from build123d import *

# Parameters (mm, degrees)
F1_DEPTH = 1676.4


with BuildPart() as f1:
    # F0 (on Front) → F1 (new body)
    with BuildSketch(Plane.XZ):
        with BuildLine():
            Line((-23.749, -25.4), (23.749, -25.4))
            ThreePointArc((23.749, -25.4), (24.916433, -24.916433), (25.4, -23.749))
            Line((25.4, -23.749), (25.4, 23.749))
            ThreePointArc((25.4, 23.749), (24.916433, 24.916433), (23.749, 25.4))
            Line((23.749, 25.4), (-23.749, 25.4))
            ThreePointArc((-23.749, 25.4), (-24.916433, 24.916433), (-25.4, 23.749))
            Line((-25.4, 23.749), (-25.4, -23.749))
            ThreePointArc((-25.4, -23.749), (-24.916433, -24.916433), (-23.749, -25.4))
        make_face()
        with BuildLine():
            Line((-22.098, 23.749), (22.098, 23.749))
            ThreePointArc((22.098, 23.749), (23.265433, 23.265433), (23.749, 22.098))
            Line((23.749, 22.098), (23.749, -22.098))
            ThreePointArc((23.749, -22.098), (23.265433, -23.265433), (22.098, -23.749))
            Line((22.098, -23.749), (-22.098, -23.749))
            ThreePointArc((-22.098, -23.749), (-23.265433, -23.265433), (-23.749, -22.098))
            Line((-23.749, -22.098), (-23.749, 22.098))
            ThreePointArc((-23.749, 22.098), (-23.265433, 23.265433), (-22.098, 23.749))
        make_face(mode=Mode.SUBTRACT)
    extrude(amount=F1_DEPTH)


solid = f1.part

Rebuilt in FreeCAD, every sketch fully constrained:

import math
import FreeCAD as App
import Part
import Sketcher

V = App.Vector
Q = App.Units.Quantity

doc = App.newDocument("Part")
body = doc.addObject("PartDesign::Body", "Body")

sketch1 = doc.addObject("Sketcher::SketchObject", "Sketch")
body.addObject(sketch1)
sketch1.AttachmentSupport = (doc.XZ_Plane, [""])
sketch1.MapMode = "FlatFace"
sketch1.addGeometry([
    Part.LineSegment(V(-23.7, -25.4, 0), V(23.7, -25.4, 0)),
    Part.ArcOfCircle(Part.Circle(V(23.7, -23.7, 0), V(0, 0, 1), 1.7), math.radians(-90), math.radians(0)),
    Part.LineSegment(V(25.4, -23.7, 0), V(25.4, 23.7, 0)),
    Part.ArcOfCircle(Part.Circle(V(23.7, 23.7, 0), V(0, 0, 1), 1.7), math.radians(0), math.radians(90)),
    Part.LineSegment(V(23.7, 25.4, 0), V(-23.7, 25.4, 0)),
    Part.ArcOfCircle(Part.Circle(V(-23.7, 23.7, 0), V(0, 0, 1), 1.7), math.radians(90), math.radians(180)),
    Part.LineSegment(V(-25.4, 23.7, 0), V(-25.4, -23.7, 0)),
    Part.ArcOfCircle(Part.Circle(V(-23.7, -23.7, 0), V(0, 0, 1), 1.7), math.radians(-180), math.radians(-90)),
    Part.ArcOfCircle(Part.Circle(V(-22.1, 22.1, 0), V(0, 0, 1), 1.7), math.radians(90), math.radians(180)),
    Part.LineSegment(V(-22.1, 23.7, 0), V(22.1, 23.7, 0)),
    Part.ArcOfCircle(Part.Circle(V(22.1, 22.1, 0), V(0, 0, 1), 1.7), math.radians(0), math.radians(90)),
    Part.LineSegment(V(23.7, 22.1, 0), V(23.7, -22.1, 0)),
    Part.ArcOfCircle(Part.Circle(V(22.1, -22.1, 0), V(0, 0, 1), 1.7), math.radians(-90), math.radians(0)),
    Part.LineSegment(V(22.1, -23.7, 0), V(-22.1, -23.7, 0)),
    Part.ArcOfCircle(Part.Circle(V(-22.1, -22.1, 0), V(0, 0, 1), 1.7), math.radians(-180), math.radians(-90)),
    Part.LineSegment(V(-23.7, -22.1, 0), V(-23.7, 22.1, 0)),
], False)
sketch1.addConstraint([
    Sketcher.Constraint("Tangent", 0, 2, 1, 1),
    Sketcher.Constraint("Tangent", 1, 2, 2, 1),
    Sketcher.Constraint("Tangent", 2, 2, 3, 1),
    Sketcher.Constraint("Tangent", 3, 2, 4, 1),
    Sketcher.Constraint("Tangent", 4, 2, 5, 1),
    Sketcher.Constraint("Tangent", 5, 2, 6, 1),
    Sketcher.Constraint("Tangent", 6, 2, 7, 1),
    Sketcher.Constraint("Tangent", 7, 2, 0, 1),
    Sketcher.Constraint("Tangent", 8, 1, 9, 1),
    Sketcher.Constraint("Tangent", 9, 2, 10, 2),
    Sketcher.Constraint("Tangent", 10, 1, 11, 1),
    Sketcher.Constraint("Tangent", 11, 2, 12, 2),
    Sketcher.Constraint("Tangent", 12, 1, 13, 1),
    Sketcher.Constraint("Tangent", 13, 2, 14, 2),
    Sketcher.Constraint("Tangent", 14, 1, 15, 1),
    Sketcher.Constraint("Tangent", 15, 2, 8, 2),
    Sketcher.Constraint("Horizontal", 0),
    Sketcher.Constraint("Vertical", 2),
    Sketcher.Constraint("Horizontal", 4),
    Sketcher.Constraint("Vertical", 6),
    Sketcher.Constraint("Horizontal", 9),
    Sketcher.Constraint("Vertical", 11),
    Sketcher.Constraint("Horizontal", 13),
    Sketcher.Constraint("Vertical", 15),
    Sketcher.Constraint("Equal", 1, 3),
    Sketcher.Constraint("Equal", 3, 5),
    Sketcher.Constraint("Equal", 5, 7),
    Sketcher.Constraint("Equal", 7, 8),
    Sketcher.Constraint("Equal", 8, 10),
    Sketcher.Constraint("Equal", 10, 12),
    Sketcher.Constraint("Equal", 12, 14),
    Sketcher.Constraint("Symmetric", 1, 3, 5, 3, -1, 1),
    Sketcher.Constraint("Symmetric", 8, 3, 12, 3, -1, 1),
    Sketcher.Constraint("Horizontal", 5, 2, 8, 1),
    Sketcher.Constraint("Vertical", 3, 2, 10, 1),
    Sketcher.Constraint("Equal", 4, 2),
    Sketcher.Constraint("DistanceY", 0, 2, -1, 1, Q("1 in")),
    Sketcher.Constraint("Radius", 1, Q("0.065 in")),
])
pad1 = doc.addObject("PartDesign::Pad", "Pad")
body.addObject(pad1)
pad1.Profile = sketch1
pad1.Length = Q("66 in")

doc.recompute()
